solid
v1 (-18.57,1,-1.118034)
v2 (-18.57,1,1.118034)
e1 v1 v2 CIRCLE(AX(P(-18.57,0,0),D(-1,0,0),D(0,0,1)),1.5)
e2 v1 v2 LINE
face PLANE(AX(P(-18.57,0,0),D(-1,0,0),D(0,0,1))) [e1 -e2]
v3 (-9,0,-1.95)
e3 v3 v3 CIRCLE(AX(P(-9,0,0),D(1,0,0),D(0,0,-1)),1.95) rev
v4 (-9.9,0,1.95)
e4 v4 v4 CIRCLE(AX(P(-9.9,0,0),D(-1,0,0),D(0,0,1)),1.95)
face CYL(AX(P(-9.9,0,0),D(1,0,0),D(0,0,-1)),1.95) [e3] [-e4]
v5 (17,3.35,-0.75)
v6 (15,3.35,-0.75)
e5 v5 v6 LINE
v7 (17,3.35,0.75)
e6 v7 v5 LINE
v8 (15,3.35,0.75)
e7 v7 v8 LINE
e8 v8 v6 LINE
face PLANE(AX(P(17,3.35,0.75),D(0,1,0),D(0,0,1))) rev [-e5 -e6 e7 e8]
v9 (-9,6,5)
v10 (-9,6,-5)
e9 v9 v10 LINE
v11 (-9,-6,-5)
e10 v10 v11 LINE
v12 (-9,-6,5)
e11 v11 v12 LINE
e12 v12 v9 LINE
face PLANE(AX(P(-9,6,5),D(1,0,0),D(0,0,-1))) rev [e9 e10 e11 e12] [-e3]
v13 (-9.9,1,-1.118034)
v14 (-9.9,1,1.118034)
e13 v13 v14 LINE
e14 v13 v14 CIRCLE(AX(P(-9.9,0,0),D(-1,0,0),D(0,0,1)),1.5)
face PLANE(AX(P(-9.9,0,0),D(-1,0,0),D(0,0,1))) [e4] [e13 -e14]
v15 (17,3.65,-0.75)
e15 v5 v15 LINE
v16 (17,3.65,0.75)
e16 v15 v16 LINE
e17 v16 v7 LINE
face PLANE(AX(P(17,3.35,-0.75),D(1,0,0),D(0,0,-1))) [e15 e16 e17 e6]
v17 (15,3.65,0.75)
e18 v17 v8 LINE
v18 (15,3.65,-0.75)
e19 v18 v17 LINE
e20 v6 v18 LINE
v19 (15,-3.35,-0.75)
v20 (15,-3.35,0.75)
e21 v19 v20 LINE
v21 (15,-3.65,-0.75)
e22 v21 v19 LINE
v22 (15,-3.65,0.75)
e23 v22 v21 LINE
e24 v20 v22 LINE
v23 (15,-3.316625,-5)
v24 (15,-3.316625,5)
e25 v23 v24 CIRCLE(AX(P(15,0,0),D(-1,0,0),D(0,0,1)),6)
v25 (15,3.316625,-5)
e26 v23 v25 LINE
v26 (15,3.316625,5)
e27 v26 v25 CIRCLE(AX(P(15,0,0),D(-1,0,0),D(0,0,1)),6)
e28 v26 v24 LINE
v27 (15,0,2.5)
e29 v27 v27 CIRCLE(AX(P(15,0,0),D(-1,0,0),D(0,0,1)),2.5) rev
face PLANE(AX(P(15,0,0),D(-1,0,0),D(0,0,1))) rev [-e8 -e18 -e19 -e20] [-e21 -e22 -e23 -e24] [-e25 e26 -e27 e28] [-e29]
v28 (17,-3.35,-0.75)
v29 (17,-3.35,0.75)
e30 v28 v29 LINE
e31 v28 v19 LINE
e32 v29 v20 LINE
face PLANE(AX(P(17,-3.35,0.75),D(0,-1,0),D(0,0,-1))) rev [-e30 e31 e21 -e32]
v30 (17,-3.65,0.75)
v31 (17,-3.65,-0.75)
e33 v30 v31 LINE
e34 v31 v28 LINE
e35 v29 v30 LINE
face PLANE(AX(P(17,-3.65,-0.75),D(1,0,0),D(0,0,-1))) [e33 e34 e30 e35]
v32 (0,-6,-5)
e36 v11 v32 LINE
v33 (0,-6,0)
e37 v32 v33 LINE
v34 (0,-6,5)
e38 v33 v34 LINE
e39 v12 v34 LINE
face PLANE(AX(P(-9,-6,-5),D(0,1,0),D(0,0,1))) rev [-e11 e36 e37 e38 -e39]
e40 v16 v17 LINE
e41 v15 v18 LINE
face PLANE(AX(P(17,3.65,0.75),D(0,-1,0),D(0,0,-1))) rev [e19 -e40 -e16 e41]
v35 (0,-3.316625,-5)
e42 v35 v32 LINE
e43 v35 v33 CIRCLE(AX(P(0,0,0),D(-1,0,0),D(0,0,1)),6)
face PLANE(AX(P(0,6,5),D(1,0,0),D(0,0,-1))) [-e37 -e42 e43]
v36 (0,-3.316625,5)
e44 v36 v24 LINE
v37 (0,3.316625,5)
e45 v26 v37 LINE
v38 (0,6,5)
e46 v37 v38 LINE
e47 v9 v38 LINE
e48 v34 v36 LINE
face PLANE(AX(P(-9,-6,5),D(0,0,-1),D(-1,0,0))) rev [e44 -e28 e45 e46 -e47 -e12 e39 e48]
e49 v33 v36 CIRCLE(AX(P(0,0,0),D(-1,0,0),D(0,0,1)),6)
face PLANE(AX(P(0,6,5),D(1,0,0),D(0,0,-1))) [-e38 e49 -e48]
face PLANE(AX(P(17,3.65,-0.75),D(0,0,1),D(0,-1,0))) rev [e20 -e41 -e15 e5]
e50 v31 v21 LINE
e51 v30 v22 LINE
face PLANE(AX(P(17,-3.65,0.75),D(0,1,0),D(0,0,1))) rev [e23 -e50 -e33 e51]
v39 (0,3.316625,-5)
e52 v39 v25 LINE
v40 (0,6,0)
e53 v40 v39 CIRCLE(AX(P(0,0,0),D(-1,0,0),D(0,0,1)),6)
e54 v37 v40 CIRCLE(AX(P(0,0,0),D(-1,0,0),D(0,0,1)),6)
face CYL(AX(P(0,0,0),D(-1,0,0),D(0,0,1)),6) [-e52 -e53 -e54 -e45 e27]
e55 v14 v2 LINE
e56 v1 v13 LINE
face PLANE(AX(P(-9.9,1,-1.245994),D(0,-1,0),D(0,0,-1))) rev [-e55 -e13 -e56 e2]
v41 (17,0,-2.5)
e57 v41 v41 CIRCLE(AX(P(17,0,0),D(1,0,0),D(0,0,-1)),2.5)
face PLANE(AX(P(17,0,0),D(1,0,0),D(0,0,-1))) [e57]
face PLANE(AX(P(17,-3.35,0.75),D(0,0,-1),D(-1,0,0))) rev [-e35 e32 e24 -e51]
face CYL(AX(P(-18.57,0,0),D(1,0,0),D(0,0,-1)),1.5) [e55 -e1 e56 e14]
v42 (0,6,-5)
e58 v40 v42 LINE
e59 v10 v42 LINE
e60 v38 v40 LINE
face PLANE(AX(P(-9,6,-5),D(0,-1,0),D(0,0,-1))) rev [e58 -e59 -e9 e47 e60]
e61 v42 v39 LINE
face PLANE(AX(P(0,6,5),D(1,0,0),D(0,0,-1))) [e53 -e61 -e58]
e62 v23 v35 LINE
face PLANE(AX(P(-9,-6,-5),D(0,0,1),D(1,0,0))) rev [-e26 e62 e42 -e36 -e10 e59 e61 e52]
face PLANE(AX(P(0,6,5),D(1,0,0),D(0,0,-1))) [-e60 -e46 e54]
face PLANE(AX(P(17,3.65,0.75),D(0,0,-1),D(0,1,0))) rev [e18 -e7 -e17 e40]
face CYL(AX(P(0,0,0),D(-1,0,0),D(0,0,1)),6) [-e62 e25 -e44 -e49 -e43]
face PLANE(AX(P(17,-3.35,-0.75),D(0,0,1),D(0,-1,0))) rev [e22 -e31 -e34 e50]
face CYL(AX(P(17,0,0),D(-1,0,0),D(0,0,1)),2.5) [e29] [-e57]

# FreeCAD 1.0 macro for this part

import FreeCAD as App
import Part
import Sketcher

V = App.Vector
Q = App.Units.Quantity


def add_polygon(sketch, points):
    """Adds a closed chain of lines whose ends are joined by coincident constraints."""
    first, n = sketch.GeometryCount, len(points)
    for a, b in zip(points, points[1:] + points[:1]):
        sketch.addGeometry(Part.LineSegment(App.Vector(*a, 0), App.Vector(*b, 0)), False)
    for i in range(n):
        sketch.addConstraint(Sketcher.Constraint("Coincident", first + i, 2, first + (i + 1) % n, 1))

doc = App.newDocument("Part")
params = doc.addObject("Spreadsheet::Sheet", "Params")
for row, (alias, value) in enumerate([
    ("sketch1_width", "15 mm"),
    ("sketch1_height", "6 mm"),
    ("revolution_angle", "360 deg"),
    ("sketch2_width", "12 mm"),
    ("sketch2_height", "10 mm"),
    ("pad1_length", "9 mm"),
    ("sketch3_width", "12 mm"),
    ("sketch3_height", "1 mm"),
    ("pocket1_length", "15 mm"),
    ("sketch4_diameter", "3.9 mm"),
    ("pad2_length", "0.9 mm"),
    ("sketch5_diameter", "3 mm"),
    ("pad3_length", "8.67 mm"),
    ("sketch6_width", "0.5 mm"),
    ("pocket2_length", "8.67 mm"),
    ("sketch7_diameter", "5 mm"),
    ("sketch7_width", "0.3 mm"),
    ("sketch7_height", "1.5 mm"),
    ("pad4_length", "2 mm"),
], start=1):
    params.set(f"A{row}", alias)
    params.set(f"B{row}", "=" + value)
    params.setAlias(f"B{row}", alias)

body = doc.addObject("PartDesign::Body", "Body")

# Sketch on XZ plane
sketch1 = body.newObject("Sketcher::SketchObject", "Sketch")
sketch1.AttachmentSupport = (doc.getObject("XZ_Plane"), [""])
sketch1.MapMode = "FlatFace"
add_polygon(sketch1, [(0, -6), (0, 0), (15, 0), (15, -6)])  # lines 0-3
sketch1.addConstraint(Sketcher.Constraint("Vertical", 0))
sketch1.addConstraint(Sketcher.Constraint("Horizontal", 1))
sketch1.addConstraint(Sketcher.Constraint("Vertical", 2))
sketch1.addConstraint(Sketcher.Constraint("Horizontal", 3))
sketch1.addConstraint(Sketcher.Constraint("Coincident", 0, 2, -1, 1))
sketch1.addConstraint(Sketcher.Constraint("DistanceX", 1, 1, 1, 2, Q("15 mm")))
sketch1.addConstraint(Sketcher.Constraint("DistanceY", 0, 1, 0, 2, Q("6 mm")))
sketch1.setExpression("Constraints[9]", "Params.sketch1_width")
sketch1.setExpression("Constraints[10]", "Params.sketch1_height")
revolution = body.newObject("PartDesign::Revolution", "Revolution")
revolution.Profile = sketch1
revolution.ReferenceAxis = (sketch1, ["H_Axis"])
revolution.setExpression("Angle", "Params.revolution_angle")

# Sketch on YZ plane
sketch2 = body.newObject("Sketcher::SketchObject", "Sketch001")
sketch2.AttachmentSupport = (doc.getObject("YZ_Plane"), [""])
sketch2.MapMode = "FlatFace"
add_polygon(sketch2, [(6, -5), (-6, -5), (-6, 5), (6, 5)])  # lines 0-3
sketch2.addConstraint(Sketcher.Constraint("Horizontal", 0))
sketch2.addConstraint(Sketcher.Constraint("Vertical", 1))
sketch2.addConstraint(Sketcher.Constraint("Horizontal", 2))
sketch2.addConstraint(Sketcher.Constraint("Vertical", 3))
sketch2.addConstraint(Sketcher.Constraint("Symmetric", 0, 2, 2, 2, -1, 1))
sketch2.addConstraint(Sketcher.Constraint("DistanceX", 0, 2, 0, 1, Q("12 mm")))
sketch2.addConstraint(Sketcher.Constraint("DistanceY", 1, 1, 1, 2, Q("10 mm")))
sketch2.setExpression("Constraints[9]", "Params.sketch2_width")
sketch2.setExpression("Constraints[10]", "Params.sketch2_height")
pad1 = body.newObject("PartDesign::Pad", "Pad")
pad1.Profile = sketch2
pad1.setExpression("Length", "Params.pad1_length")
pad1.Reversed = True

# Sketch on YZ plane
sketch3 = body.newObject("Sketcher::SketchObject", "Sketch002")
sketch3.AttachmentSupport = (doc.getObject("YZ_Plane"), [""])
sketch3.MapMode = "FlatFace"
add_polygon(sketch3, [(6, 5), (-6, 5), (-6, 6), (6, 6)])  # lines 0-3
add_polygon(sketch3, [(6, -6), (-6, -6), (-6, -5), (6, -5)])  # lines 4-7
sketch3.addConstraint(Sketcher.Constraint("Horizontal", 0))
sketch3.addConstraint(Sketcher.Constraint("Vertical", 1))
sketch3.addConstraint(Sketcher.Constraint("Horizontal", 2))
sketch3.addConstraint(Sketcher.Constraint("Vertical", 3))
sketch3.addConstraint(Sketcher.Constraint("Horizontal", 4))
sketch3.addConstraint(Sketcher.Constraint("Vertical", 5))
sketch3.addConstraint(Sketcher.Constraint("Horizontal", 6))
sketch3.addConstraint(Sketcher.Constraint("Vertical", 7))
sketch3.addConstraint(Sketcher.Constraint("Symmetric", 2, 2, 4, 2, -1, 1))
sketch3.addConstraint(Sketcher.Constraint("Symmetric", 0, 2, 6, 2, -1, 1))
sketch3.addConstraint(Sketcher.Constraint("Vertical", 1, 2, 4, 2))
sketch3.addConstraint(Sketcher.Constraint("DistanceX", 0, 2, 0, 1, Q("12 mm")))
sketch3.addConstraint(Sketcher.Constraint("DistanceY", 1, 1, 1, 2, Q("1 mm")))
sketch3.addConstraint(Sketcher.Constraint("DistanceY", -1, 1, 0, 2, Q("5 mm")))
sketch3.setExpression("Constraints[19]", "Params.sketch3_width")
sketch3.setExpression("Constraints[20]", "Params.sketch3_height")
pocket1 = body.newObject("PartDesign::Pocket", "Pocket")
pocket1.Profile = sketch3
pocket1.setExpression("Length", "Params.pocket1_length")
pocket1.Reversed = True

# Sketch on YZ plane
sketch4 = body.newObject("Sketcher::SketchObject", "Sketch003")
sketch4.AttachmentSupport = (doc.getObject("YZ_Plane"), [""])
sketch4.MapMode = "FlatFace"
sketch4.AttachmentOffset = App.Placement(V(0, 0, -9), App.Rotation())
sketch4.addGeometry(Part.Circle(V(0, 0, 0), V(0, 0, 1), 1.9), False)
sketch4.addConstraint(Sketcher.Constraint("Coincident", 0, 3, -1, 1))
sketch4.addConstraint(Sketcher.Constraint("Diameter", 0, Q("3.9 mm")))
sketch4.setExpression("Constraints[1]", "Params.sketch4_diameter")
pad2 = body.newObject("PartDesign::Pad", "Pad001")
pad2.Profile = sketch4
pad2.setExpression("Length", "Params.pad2_length")
pad2.Reversed = True

# Sketch on YZ plane
sketch5 = body.newObject("Sketcher::SketchObject", "Sketch004")
sketch5.AttachmentSupport = (doc.getObject("YZ_Plane"), [""])
sketch5.MapMode = "FlatFace"
sketch5.AttachmentOffset = App.Placement(V(0, 0, -9.9), App.Rotation())
sketch5.addGeometry(Part.Circle(V(0, 0, 0), V(0, 0, 1), 1.5), False)
sketch5.addConstraint(Sketcher.Constraint("Coincident", 0, 3, -1, 1))
sketch5.addConstraint(Sketcher.Constraint("Diameter", 0, Q("3 mm")))
sketch5.setExpression("Constraints[1]", "Params.sketch5_diameter")
pad3 = body.newObject("PartDesign::Pad", "Pad002")
pad3.Profile = sketch5
pad3.setExpression("Length", "Params.pad3_length")
pad3.Reversed = True

# Sketch on YZ plane
sketch6 = body.newObject("Sketcher::SketchObject", "Sketch005")
sketch6.AttachmentSupport = (doc.getObject("YZ_Plane"), [""])
sketch6.MapMode = "FlatFace"
sketch6.AttachmentOffset = App.Placement(V(0, 0, -18.57), App.Rotation())
add_polygon(sketch6, [(1.5, -1.2), (1, -1.2), (1, 1.2), (1.5, 1.2)])  # lines 0-3
sketch6.addConstraint(Sketcher.Constraint("Horizontal", 0))
sketch6.addConstraint(Sketcher.Constraint("Vertical", 1))
sketch6.addConstraint(Sketcher.Constraint("Horizontal", 2))
sketch6.addConstraint(Sketcher.Constraint("Vertical", 3))
sketch6.addConstraint(Sketcher.Constraint("DistanceX", 0, 2, 0, 1, Q("0.5 mm")))
sketch6.addConstraint(Sketcher.Constraint("DistanceX", -1, 1, 0, 2, Q("1 mm")))
sketch6.addConstraint(Sketcher.Constraint("DistanceY", 1, 1, 1, 2, Q("2.491987 mm")))
sketch6.addConstraint(Sketcher.Constraint("DistanceY", 0, 2, -1, 1, Q("1.245994 mm")))
sketch6.setExpression("Constraints[8]", "Params.sketch6_width")
pocket2 = body.newObject("PartDesign::Pocket", "Pocket001")
pocket2.Profile = sketch6
pocket2.setExpression("Length", "Params.pocket2_length")
pocket2.Reversed = True

# Sketch on YZ plane
sketch7 = body.newObject("Sketcher::SketchObject", "Sketch006")
sketch7.AttachmentSupport = (doc.getObject("YZ_Plane"), [""])
sketch7.MapMode = "FlatFace"
sketch7.AttachmentOffset = App.Placement(V(0, 0, 15), App.Rotation())
sketch7.addGeometry(Part.Circle(V(0, 0, 0), V(0, 0, 1), 2.5), False)  # 0
add_polygon(sketch7, [(3.65, 0.75), (3.35, 0.75), (3.35, -0.75), (3.65, -0.75)])  # lines 1-4
add_polygon(sketch7, [(-3.35, 0.75), (-3.65, 0.75), (-3.65, -0.75), (-3.35, -0.75)])  # lines 5-8
sketch7.addConstraint(Sketcher.Constraint("Horizontal", 1))
sketch7.addConstraint(Sketcher.Constraint("Vertical", 2))
sketch7.addConstraint(Sketcher.Constraint("Horizontal", 3))
sketch7.addConstraint(Sketcher.Constraint("Vertical", 4))
sketch7.addConstraint(Sketcher.Constraint("Horizontal", 5))
sketch7.addConstraint(Sketcher.Constraint("Vertical", 6))
sketch7.addConstraint(Sketcher.Constraint("Horizontal", 7))
sketch7.addConstraint(Sketcher.Constraint("Vertical", 8))
sketch7.addConstraint(Sketcher.Constraint("Coincident", 0, 3, -1, 1))
sketch7.addConstraint(Sketcher.Constraint("Symmetric", 3, 2, 5, 2, -1, 1))
sketch7.addConstraint(Sketcher.Constraint("Symmetric", 1, 2, 7, 2, -1, 1))
sketch7.addConstraint(Sketcher.Constraint("Horizontal", 4, 2, 5, 2))
sketch7.addConstraint(Sketcher.Constraint("Diameter", 0, Q("5 mm")))
sketch7.addConstraint(Sketcher.Constraint("DistanceX", 1, 2, 1, 1, Q("0.3 mm")))
sketch7.addConstraint(Sketcher.Constraint("DistanceY", 2, 2, 2, 1, Q("1.5 mm")))
sketch7.addConstraint(Sketcher.Constraint("DistanceX", 5, 2, 1, 2, Q("7 mm")))
sketch7.setExpression("Constraints[20]", "Params.sketch7_diameter")
sketch7.setExpression("Constraints[21]", "Params.sketch7_width")
sketch7.setExpression("Constraints[22]", "Params.sketch7_height")
pad4 = body.newObject("PartDesign::Pad", "Pad003")
pad4.Profile = sketch7
pad4.setExpression("Length", "Params.pad4_length")

doc.recompute()
